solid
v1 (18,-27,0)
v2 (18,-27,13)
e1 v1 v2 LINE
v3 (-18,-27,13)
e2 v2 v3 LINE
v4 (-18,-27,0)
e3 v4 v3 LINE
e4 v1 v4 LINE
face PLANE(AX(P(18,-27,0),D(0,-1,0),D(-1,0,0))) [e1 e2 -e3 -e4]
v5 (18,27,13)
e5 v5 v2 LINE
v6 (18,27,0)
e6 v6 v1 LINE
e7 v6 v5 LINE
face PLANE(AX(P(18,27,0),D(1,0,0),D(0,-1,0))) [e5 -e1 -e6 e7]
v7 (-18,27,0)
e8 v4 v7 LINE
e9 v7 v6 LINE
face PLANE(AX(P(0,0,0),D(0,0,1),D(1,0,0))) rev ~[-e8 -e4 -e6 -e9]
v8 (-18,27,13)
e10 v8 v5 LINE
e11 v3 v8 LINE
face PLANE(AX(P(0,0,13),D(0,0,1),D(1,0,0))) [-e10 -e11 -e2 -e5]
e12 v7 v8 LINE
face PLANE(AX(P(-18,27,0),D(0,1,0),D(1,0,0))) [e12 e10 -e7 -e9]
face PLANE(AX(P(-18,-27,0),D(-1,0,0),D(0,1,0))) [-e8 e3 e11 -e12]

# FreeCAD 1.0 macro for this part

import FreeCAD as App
import Part
import Sketcher

V = App.Vector
Q = App.Units.Quantity


def add_polygon(sketch, points):
    """Adds a closed chain of lines whose ends are joined by coincident constraints."""
    first, n = sketch.GeometryCount, len(points)
    for a, b in zip(points, points[1:] + points[:1]):
        sketch.addGeometry(Part.LineSegment(App.Vector(*a, 0), App.Vector(*b, 0)), False)
    for i in range(n):
        sketch.addConstraint(Sketcher.Constraint("Coincident", first + i, 2, first + (i + 1) % n, 1))

doc = App.newDocument("Part")
body = doc.addObject("PartDesign::Body", "Body")

# Sketch on XY plane
sketch1 = body.newObject("Sketcher::SketchObject", "Sketch")
sketch1.AttachmentSupport = (doc.getObject("XY_Plane"), [""])
sketch1.MapMode = "FlatFace"
add_polygon(sketch1, [(-18, -27), (18, -27), (18, 27), (-18, 27)])  # lines 0-3
sketch1.addConstraint(Sketcher.Constraint("Horizontal", 0))
sketch1.addConstraint(Sketcher.Constraint("Vertical", 1))
sketch1.addConstraint(Sketcher.Constraint("Horizontal", 2))
sketch1.addConstraint(Sketcher.Constraint("Vertical", 3))
sketch1.addConstraint(Sketcher.Constraint("Symmetric", 0, 2, 2, 2, -1, 1))
sketch1.addConstraint(Sketcher.Constraint("DistanceX", 0, 1, 0, 2, Q("36 mm")))
sketch1.addConstraint(Sketcher.Constraint("DistanceY", 1, 1, 1, 2, Q("54 mm")))
pad1 = body.newObject("PartDesign::Pad", "Pad")
pad1.Profile = sketch1
pad1.Length = 13

doc.recompute()
